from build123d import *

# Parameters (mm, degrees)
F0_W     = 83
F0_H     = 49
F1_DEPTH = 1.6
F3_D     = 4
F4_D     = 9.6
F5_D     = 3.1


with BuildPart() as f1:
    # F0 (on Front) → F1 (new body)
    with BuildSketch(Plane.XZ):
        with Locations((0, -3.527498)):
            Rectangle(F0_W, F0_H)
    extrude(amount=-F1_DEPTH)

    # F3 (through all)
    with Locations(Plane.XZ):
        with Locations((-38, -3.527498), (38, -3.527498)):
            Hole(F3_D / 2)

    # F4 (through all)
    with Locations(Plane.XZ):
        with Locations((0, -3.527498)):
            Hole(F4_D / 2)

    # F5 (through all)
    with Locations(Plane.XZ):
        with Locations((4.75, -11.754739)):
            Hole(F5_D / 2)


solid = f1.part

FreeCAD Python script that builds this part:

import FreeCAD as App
import Part
import Sketcher

V = App.Vector


def add_polygon(sketch, points):
    """Adds a closed chain of lines whose ends are joined by coincident constraints."""
    first, n = sketch.GeometryCount, len(points)
    for a, b in zip(points, points[1:] + points[:1]):
        sketch.addGeometry(Part.LineSegment(App.Vector(*a, 0), App.Vector(*b, 0)), False)
    for i in range(n):
        sketch.addConstraint(Sketcher.Constraint("Coincident", first + i, 2, first + (i + 1) % n, 1))

doc = App.newDocument("Part")
body = doc.addObject("PartDesign::Body", "Body")

# Sketch on XZ plane
sketch1 = body.newObject("Sketcher::SketchObject", "Sketch")
sketch1.AttachmentSupport = (doc.getObject("XZ_Plane"), [""])
sketch1.MapMode = "FlatFace"
add_polygon(sketch1, [(-42, 21), (-42, -28), (42, -28), (42, 21)])  # lines 0-3
sketch1.addConstraint([
    Sketcher.Constraint("Vertical", 0),
    Sketcher.Constraint("Horizontal", 1),
    Sketcher.Constraint("Vertical", 2),
    Sketcher.Constraint("Horizontal", 3),
    Sketcher.Constraint("DistanceX", 1, 1, 1, 2, 83.0),
    Sketcher.Constraint("DistanceY", 0, 2, 0, 1, 49.0),
    Sketcher.Constraint("DistanceX", 0, 2, -1, 1, 41.5),
    Sketcher.Constraint("DistanceY", 0, 2, -1, 1, 28.027498),
])
pad1 = body.newObject("PartDesign::Pad", "Pad")
pad1.Profile = sketch1
pad1.Length = 1.6
pad1.Reversed = True

# Sketch on XZ plane
sketch2 = body.newObject("Sketcher::SketchObject", "Sketch001")
sketch2.AttachmentSupport = (doc.getObject("XZ_Plane"), [""])
sketch2.MapMode = "FlatFace"
sketch2.addGeometry([
    Part.Circle(V(-38, -3.5, 0), V(0, 0, 1), 2),
    Part.Circle(V(38, -3.5, 0), V(0, 0, 1), 2),
], False)
sketch2.addConstraint([
    Sketcher.Constraint("Equal", 0, 1),
    Sketcher.Constraint("Symmetric", 0, 3, 1, 3, -2),
    Sketcher.Constraint("Diameter", 0, 4.0),
    Sketcher.Constraint("DistanceX", 0, 3, -1, 1, 38.0),
    Sketcher.Constraint("DistanceY", 0, 3, -1, 1, 3.527498),
])
doc.recompute()
hole = body.newObject("PartDesign::Hole", "Hole")
hole.Profile = sketch2
hole.ThreadType = "None"
hole.Diameter = 4
hole.DepthType = "ThroughAll"

# Sketch on XZ plane
sketch3 = body.newObject("Sketcher::SketchObject", "Sketch002")
sketch3.AttachmentSupport = (doc.getObject("XZ_Plane"), [""])
sketch3.MapMode = "FlatFace"
sketch3.addGeometry(Part.Circle(V(0, -3.5, 0), V(0, 0, 1), 4.8), False)
sketch3.addConstraint([
    Sketcher.Constraint("PointOnObject", 0, 3, -2),
    Sketcher.Constraint("Diameter", 0, 9.6),
    Sketcher.Constraint("DistanceY", 0, 3, -1, 1, 3.527498),
])
doc.recompute()
hole2 = body.newObject("PartDesign::Hole", "Hole001")
hole2.Profile = sketch3
hole2.ThreadType = "None"
hole2.Diameter = 9.6
hole2.DepthType = "ThroughAll"

# Sketch on XZ plane
sketch4 = body.newObject("Sketcher::SketchObject", "Sketch003")
sketch4.AttachmentSupport = (doc.getObject("XZ_Plane"), [""])
sketch4.MapMode = "FlatFace"
sketch4.addGeometry(Part.Circle(V(4.8, -11.8, 0), V(0, 0, 1), 1.6), False)
sketch4.addConstraint([
    Sketcher.Constraint("Diameter", 0, 3.1),
    Sketcher.Constraint("DistanceX", -1, 1, 0, 3, 4.75),
    Sketcher.Constraint("DistanceY", 0, 3, -1, 1, 11.754739),
])
doc.recompute()
hole3 = body.newObject("PartDesign::Hole", "Hole002")
hole3.Profile = sketch4
hole3.ThreadType = "None"
hole3.Diameter = 3.1
hole3.DepthType = "ThroughAll"

doc.recompute()
